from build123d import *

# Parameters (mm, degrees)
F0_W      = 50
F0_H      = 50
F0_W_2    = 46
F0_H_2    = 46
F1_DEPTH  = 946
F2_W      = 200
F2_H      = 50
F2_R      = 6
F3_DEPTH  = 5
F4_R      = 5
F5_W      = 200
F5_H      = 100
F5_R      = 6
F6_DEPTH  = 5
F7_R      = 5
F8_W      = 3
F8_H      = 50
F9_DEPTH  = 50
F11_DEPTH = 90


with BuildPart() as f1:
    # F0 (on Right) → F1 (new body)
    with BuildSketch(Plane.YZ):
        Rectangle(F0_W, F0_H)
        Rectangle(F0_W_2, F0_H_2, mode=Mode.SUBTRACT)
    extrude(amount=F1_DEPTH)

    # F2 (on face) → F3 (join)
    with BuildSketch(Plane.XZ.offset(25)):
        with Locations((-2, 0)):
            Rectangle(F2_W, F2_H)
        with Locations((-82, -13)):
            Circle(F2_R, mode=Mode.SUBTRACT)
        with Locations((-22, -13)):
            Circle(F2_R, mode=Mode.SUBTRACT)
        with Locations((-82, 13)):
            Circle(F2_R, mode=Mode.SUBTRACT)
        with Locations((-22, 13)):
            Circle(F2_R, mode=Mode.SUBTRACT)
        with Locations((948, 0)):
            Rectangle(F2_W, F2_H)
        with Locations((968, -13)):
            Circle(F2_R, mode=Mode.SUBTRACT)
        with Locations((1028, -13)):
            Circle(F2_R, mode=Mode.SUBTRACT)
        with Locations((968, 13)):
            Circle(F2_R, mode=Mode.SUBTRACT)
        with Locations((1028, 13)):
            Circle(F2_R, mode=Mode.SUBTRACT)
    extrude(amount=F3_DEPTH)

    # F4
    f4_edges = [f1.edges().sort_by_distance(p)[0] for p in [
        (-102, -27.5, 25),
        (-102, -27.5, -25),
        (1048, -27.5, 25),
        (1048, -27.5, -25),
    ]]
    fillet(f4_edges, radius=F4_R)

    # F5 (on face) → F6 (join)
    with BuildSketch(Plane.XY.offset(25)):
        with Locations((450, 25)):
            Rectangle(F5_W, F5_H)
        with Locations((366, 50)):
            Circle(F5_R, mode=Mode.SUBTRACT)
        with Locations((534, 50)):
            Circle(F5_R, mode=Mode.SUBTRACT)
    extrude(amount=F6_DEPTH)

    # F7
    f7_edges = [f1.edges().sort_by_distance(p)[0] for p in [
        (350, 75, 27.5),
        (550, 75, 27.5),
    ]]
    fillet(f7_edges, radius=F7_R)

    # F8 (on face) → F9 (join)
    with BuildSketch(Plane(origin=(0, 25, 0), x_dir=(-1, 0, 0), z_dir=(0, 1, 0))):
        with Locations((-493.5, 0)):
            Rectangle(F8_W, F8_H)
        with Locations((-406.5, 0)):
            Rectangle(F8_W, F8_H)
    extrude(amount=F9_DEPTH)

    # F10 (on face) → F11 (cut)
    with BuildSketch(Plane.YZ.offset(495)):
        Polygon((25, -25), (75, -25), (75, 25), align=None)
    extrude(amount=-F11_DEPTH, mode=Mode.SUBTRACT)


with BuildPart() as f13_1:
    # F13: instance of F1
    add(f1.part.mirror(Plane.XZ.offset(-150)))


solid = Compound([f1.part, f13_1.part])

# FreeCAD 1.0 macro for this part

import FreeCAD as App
import Part
import Sketcher

V = App.Vector
Q = App.Units.Quantity


def edges_at(feature, points):
    """Names of the edges that pass closest to the given points."""
    edges = feature.Shape.Edges
    near = lambda p: min(range(len(edges)), key=lambda i: edges[i].distToShape(Part.Vertex(*p))[0])
    return sorted({f"Edge{near(p) + 1}" for p in points})


def add_polygon(sketch, points):
    """Adds a closed chain of lines whose ends are joined by coincident constraints."""
    first, n = sketch.GeometryCount, len(points)
    for a, b in zip(points, points[1:] + points[:1]):
        sketch.addGeometry(Part.LineSegment(App.Vector(*a, 0), App.Vector(*b, 0)), False)
    for i in range(n):
        sketch.addConstraint(Sketcher.Constraint("Coincident", first + i, 2, first + (i + 1) % n, 1))

doc = App.newDocument("Part")
body = doc.addObject("PartDesign::Body", "Body")

sketch1 = body.newObject("Sketcher::SketchObject", "Sketch")
sketch1.AttachmentSupport = (doc.getObject("YZ_Plane"), [""])
sketch1.MapMode = "FlatFace"
add_polygon(sketch1, [(-25, 25), (-25, -25), (25, -25), (25, 25)])
add_polygon(sketch1, [(23, -23), (-23, -23), (-23, 23), (23, 23)])
sketch1.addConstraint([
    Sketcher.Constraint("Vertical", 0),
    Sketcher.Constraint("Horizontal", 1),
    Sketcher.Constraint("Vertical", 2),
    Sketcher.Constraint("Horizontal", 3),
    Sketcher.Constraint("Horizontal", 4),
    Sketcher.Constraint("Vertical", 5),
    Sketcher.Constraint("Horizontal", 6),
    Sketcher.Constraint("Vertical", 7),
    Sketcher.Constraint("Symmetric", 0, 2, 2, 2, -1, 1),
    Sketcher.Constraint("Symmetric", 4, 2, 6, 2, -1, 1),
    Sketcher.Constraint("Equal", 3, 0),
    Sketcher.Constraint("Equal", 6, 5),
    Sketcher.Constraint("DistanceX", 1, 1, 1, 2, Q("50 mm")),
    Sketcher.Constraint("DistanceX", 4, 2, 4, 1, Q("46 mm")),
])
pad1 = body.newObject("PartDesign::Pad", "Pad")
pad1.Profile = sketch1
pad1.Length = 946

sketch2 = body.newObject("Sketcher::SketchObject", "Sketch001")
sketch2.AttachmentSupport = (doc.getObject("XZ_Plane"), [""])
sketch2.MapMode = "FlatFace"
sketch2.AttachmentOffset = App.Placement(V(0, 0, 25), App.Rotation())
add_polygon(sketch2, [(-102, 25), (-102, -25), (98, -25), (98, 25)])
sketch2.addGeometry(Part.Circle(V(-82, -13, 0), V(0, 0, 1), 6), False)
sketch2.addGeometry(Part.Circle(V(-22, -13, 0), V(0, 0, 1), 6), False)
sketch2.addGeometry(Part.Circle(V(-82, 13, 0), V(0, 0, 1), 6), False)
sketch2.addGeometry(Part.Circle(V(-22, 13, 0), V(0, 0, 1), 6), False)
add_polygon(sketch2, [(848, 25), (848, -25), (1048, -25), (1048, 25)])
sketch2.addGeometry(Part.Circle(V(968, -13, 0), V(0, 0, 1), 6), False)
sketch2.addGeometry(Part.Circle(V(1028, -13, 0), V(0, 0, 1), 6), False)
sketch2.addGeometry(Part.Circle(V(968, 13, 0), V(0, 0, 1), 6), False)
sketch2.addGeometry(Part.Circle(V(1028, 13, 0), V(0, 0, 1), 6), False)
sketch2.addConstraint([
    Sketcher.Constraint("Vertical", 0),
    Sketcher.Constraint("Horizontal", 1),
    Sketcher.Constraint("Vertical", 2),
    Sketcher.Constraint("Horizontal", 3),
    Sketcher.Constraint("Vertical", 8),
    Sketcher.Constraint("Horizontal", 9),
    Sketcher.Constraint("Vertical", 10),
    Sketcher.Constraint("Horizontal", 11),
    Sketcher.Constraint("Equal", 4, 5),
    Sketcher.Constraint("Equal", 5, 6),
    Sketcher.Constraint("Equal", 6, 7),
    Sketcher.Constraint("Equal", 7, 12),
    Sketcher.Constraint("Equal", 12, 13),
    Sketcher.Constraint("Equal", 13, 14),
    Sketcher.Constraint("Equal", 14, 15),
    Sketcher.Constraint("Symmetric", 4, 3, 6, 3, -1),
    Sketcher.Constraint("Symmetric", 5, 3, 7, 3, -1),
    Sketcher.Constraint("Symmetric", 12, 3, 14, 3, -1),
    Sketcher.Constraint("Symmetric", 13, 3, 15, 3, -1),
    Sketcher.Constraint("Horizontal", 4, 3, 5, 3),
    Sketcher.Constraint("Horizontal", 5, 3, 12, 3),
    Sketcher.Constraint("Horizontal", 12, 3, 13, 3),
    Sketcher.Constraint("Horizontal", 1, 2, 8, 2),
    Sketcher.Constraint("Horizontal", 3, 2, 10, 2),
    Sketcher.Constraint("Equal", 3, 9),
    Sketcher.Constraint("Diameter", 4, Q("12 mm")),
    Sketcher.Constraint("DistanceX", 1, 1, 1, 2, Q("200 mm")),
    Sketcher.Constraint("DistanceY", 0, 2, 0, 1, Q("50 mm")),
    Sketcher.Constraint("DistanceX", 4, 3, -1, 1, Q("82 mm")),
    Sketcher.Constraint("DistanceY", 4, 3, -1, 1, Q("13 mm")),
    Sketcher.Constraint("DistanceX", 5, 3, -1, 1, Q("22 mm")),
    Sketcher.Constraint("DistanceX", -1, 1, 12, 3, Q("968 mm")),
    Sketcher.Constraint("DistanceX", -1, 1, 13, 3, Q("1028 mm")),
    Sketcher.Constraint("DistanceX", 0, 2, -1, 1, Q("102 mm")),
    Sketcher.Constraint("DistanceY", 0, 2, -1, 1, Q("25 mm")),
    Sketcher.Constraint("DistanceX", -1, 1, 8, 2, Q("848 mm")),
])
pad2 = body.newObject("PartDesign::Pad", "Pad001")
pad2.Profile = sketch2
pad2.Length = 5
doc.recompute()

fillet = body.newObject("PartDesign::Fillet", "Fillet")
fillet.Base = (pad2, edges_at(pad2, [
    (-102, -27.5, 25),
    (-102, -27.5, -25),
    (1048, -27.5, 25),
    (1048, -27.5, -25),
]))
fillet.Radius = 5

sketch3 = body.newObject("Sketcher::SketchObject", "Sketch002")
sketch3.AttachmentSupport = (doc.getObject("XY_Plane"), [""])
sketch3.MapMode = "FlatFace"
sketch3.AttachmentOffset = App.Placement(V(0, 0, 25), App.Rotation())
add_polygon(sketch3, [(350, 75), (350, -25), (550, -25), (550, 75)])
sketch3.addGeometry(Part.Circle(V(366, 50, 0), V(0, 0, 1), 6), False)
sketch3.addGeometry(Part.Circle(V(534, 50, 0), V(0, 0, 1), 6), False)
sketch3.addConstraint([
    Sketcher.Constraint("Vertical", 0),
    Sketcher.Constraint("Horizontal", 1),
    Sketcher.Constraint("Vertical", 2),
    Sketcher.Constraint("Horizontal", 3),
    Sketcher.Constraint("Equal", 4, 5),
    Sketcher.Constraint("Horizontal", 4, 3, 5, 3),
    Sketcher.Constraint("Diameter", 4, Q("12 mm")),
    Sketcher.Constraint("DistanceX", 1, 1, 1, 2, Q("200 mm")),
    Sketcher.Constraint("DistanceY", 0, 2, 0, 1, Q("100 mm")),
    Sketcher.Constraint("DistanceX", -1, 1, 4, 3, Q("366 mm")),
    Sketcher.Constraint("DistanceY", -1, 1, 4, 3, Q("50 mm")),
    Sketcher.Constraint("DistanceX", -1, 1, 5, 3, Q("534 mm")),
    Sketcher.Constraint("DistanceX", -1, 1, 0, 2, Q("350 mm")),
    Sketcher.Constraint("DistanceY", 0, 2, -1, 1, Q("25 mm")),
])
pad3 = body.newObject("PartDesign::Pad", "Pad002")
pad3.Profile = sketch3
pad3.Length = 5
doc.recompute()

fillet2 = body.newObject("PartDesign::Fillet", "Fillet001")
fillet2.Base = (pad3, edges_at(pad3, [(350, 75, 27.5), (550, 75, 27.5)]))
fillet2.Radius = 5

sketch4 = body.newObject("Sketcher::SketchObject", "Sketch003")
sketch4.AttachmentSupport = (doc.getObject("XZ_Plane"), [""])
sketch4.MapMode = "FlatFace"
sketch4.AttachmentOffset = App.Placement(V(0, 0, -25), App.Rotation())
add_polygon(sketch4, [(495, 25), (495, -25), (492, -25), (492, 25)])
add_polygon(sketch4, [(408, 25), (408, -25), (405, -25), (405, 25)])
sketch4.addConstraint([
    Sketcher.Constraint("Vertical", 0),
    Sketcher.Constraint("Horizontal", 1),
    Sketcher.Constraint("Vertical", 2),
    Sketcher.Constraint("Horizontal", 3),
    Sketcher.Constraint("Vertical", 4),
    Sketcher.Constraint("Horizontal", 5),
    Sketcher.Constraint("Vertical", 6),
    Sketcher.Constraint("Horizontal", 7),
    Sketcher.Constraint("Horizontal", 1, 2, 4, 2),
    Sketcher.Constraint("Horizontal", 3, 2, 6, 2),
    Sketcher.Constraint("Equal", 3, 5),
    Sketcher.Constraint("DistanceX", 1, 2, 1, 1, Q("3 mm")),
    Sketcher.Constraint("DistanceY", 0, 2, 0, 1, Q("50 mm")),
    Sketcher.Constraint("DistanceX", -1, 1, 0, 2, Q("495 mm")),
    Sketcher.Constraint("DistanceY", 0, 2, -1, 1, Q("25 mm")),
    Sketcher.Constraint("DistanceX", -1, 1, 4, 2, Q("408 mm")),
])
pad4 = body.newObject("PartDesign::Pad", "Pad003")
pad4.Profile = sketch4
pad4.Length = 50
pad4.Reversed = True

sketch5 = body.newObject("Sketcher::SketchObject", "Sketch004")
sketch5.AttachmentSupport = (doc.getObject("YZ_Plane"), [""])
sketch5.MapMode = "FlatFace"
sketch5.AttachmentOffset = App.Placement(V(0, 0, 495), App.Rotation())
add_polygon(sketch5, [(25, -25), (75, -25), (75, 25)])
sketch5.addConstraint([
    Sketcher.Constraint("Horizontal", 0),
    Sketcher.Constraint("Vertical", 1),
    Sketcher.Constraint("Equal", 0, 1),
    Sketcher.Constraint("DistanceX", 0, 1, 0, 2, Q("50 mm")),
    Sketcher.Constraint("DistanceX", -1, 1, 0, 2, Q("75 mm")),
    Sketcher.Constraint("DistanceY", 0, 2, -1, 1, Q("25 mm")),
])
pocket1 = body.newObject("PartDesign::Pocket", "Pocket")
pocket1.Profile = sketch5
pocket1.Length = 90
body2 = doc.addObject("PartDesign::Body", "Body001")
doc.recompute()

mirroring = doc.addObject("Part::Mirroring", "Mirroring")
mirroring.Source = body
mirroring.Base = V(0, 150, 0)
mirroring.Normal = V(0, -1, 0)
body2.BaseFeature = mirroring
doc.recompute()
mirroring.Visibility = False

doc.recompute()
